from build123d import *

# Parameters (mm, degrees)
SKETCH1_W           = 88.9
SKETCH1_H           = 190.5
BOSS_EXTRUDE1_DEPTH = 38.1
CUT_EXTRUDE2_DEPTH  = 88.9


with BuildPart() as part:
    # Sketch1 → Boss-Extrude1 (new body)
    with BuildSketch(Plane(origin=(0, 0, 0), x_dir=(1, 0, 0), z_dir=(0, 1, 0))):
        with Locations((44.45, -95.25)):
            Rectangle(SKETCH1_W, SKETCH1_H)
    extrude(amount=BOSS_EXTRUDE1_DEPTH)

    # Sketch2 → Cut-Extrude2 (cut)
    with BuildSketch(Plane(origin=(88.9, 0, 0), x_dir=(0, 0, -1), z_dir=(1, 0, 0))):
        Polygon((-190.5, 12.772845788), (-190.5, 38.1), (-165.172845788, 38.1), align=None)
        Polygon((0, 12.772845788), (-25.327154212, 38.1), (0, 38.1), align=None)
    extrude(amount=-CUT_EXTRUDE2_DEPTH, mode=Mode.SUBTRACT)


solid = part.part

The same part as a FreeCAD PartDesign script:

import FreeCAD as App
import Part
import Sketcher
Q = App.Units.Quantity


def add_polygon(sketch, points):
    """Adds a closed chain of lines whose ends are joined by coincident constraints."""
    first, n = sketch.GeometryCount, len(points)
    for a, b in zip(points, points[1:] + points[:1]):
        sketch.addGeometry(Part.LineSegment(App.Vector(*a, 0), App.Vector(*b, 0)), False)
    for i in range(n):
        sketch.addConstraint(Sketcher.Constraint("Coincident", first + i, 2, first + (i + 1) % n, 1))

doc = App.newDocument("Part")
body = doc.addObject("PartDesign::Body", "Body")

sketch1 = body.newObject("Sketcher::SketchObject", "Sketch")
sketch1.AttachmentSupport = (doc.getObject("XZ_Plane"), [""])
sketch1.MapMode = "FlatFace"
add_polygon(sketch1, [(0, 0), (0, 190.5), (88.9, 190.5), (88.9, 0)])
sketch1.addConstraint([
    Sketcher.Constraint("Vertical", 0),
    Sketcher.Constraint("Horizontal", 1),
    Sketcher.Constraint("Vertical", 2),
    Sketcher.Constraint("Horizontal", 3),
    Sketcher.Constraint("Coincident", 3, 2, -1, 1),
    Sketcher.Constraint("DistanceX", 1, 1, 1, 2, Q("3.5 in")),
    Sketcher.Constraint("DistanceY", 0, 1, 0, 2, Q("7.5 in")),
])
pad1 = body.newObject("PartDesign::Pad", "Pad")
pad1.Profile = sketch1
pad1.Length = Q("1.5 in")
pad1.Reversed = True

sketch2 = body.newObject("Sketcher::SketchObject", "Sketch001")
sketch2.AttachmentSupport = (doc.getObject("YZ_Plane"), [""])
sketch2.MapMode = "FlatFace"
sketch2.AttachmentOffset = App.Placement(App.Vector(0, 0, 3.5 * 25.4), App.Rotation())
add_polygon(sketch2, [(38.1, 190.5), (12.772846, 190.5), (38.1, 165.172846)])
add_polygon(sketch2, [(38.1, 25.327154), (12.772846, 0), (38.1, 0)])
sketch2.addConstraint([
    Sketcher.Constraint("Horizontal", 0),
    Sketcher.Constraint("Vertical", 2),
    Sketcher.Constraint("Horizontal", 4),
    Sketcher.Constraint("Vertical", 5),
    Sketcher.Constraint("PointOnObject", 3, 2, -1),
    Sketcher.Constraint("Perpendicular", 1, 3),
    Sketcher.Constraint("Vertical", 0, 2, 3, 2),
    Sketcher.Constraint("Vertical", 2, 2, 4, 2),
    Sketcher.Constraint("Equal", 4, 2),
    Sketcher.Constraint("DistanceY", -1, 1, 0, 2, Q("7.5 in")),
    Sketcher.Constraint("DistanceX", -1, 1, 1, 2, Q("1.5 in")),
    Sketcher.Constraint("DistanceX", 0, 2, 0, 1, Q("25.327154 mm")),
])
pocket1 = body.newObject("PartDesign::Pocket", "Pocket")
pocket1.Profile = sketch2
pocket1.Length = Q("3.5 in")

doc.recompute()
